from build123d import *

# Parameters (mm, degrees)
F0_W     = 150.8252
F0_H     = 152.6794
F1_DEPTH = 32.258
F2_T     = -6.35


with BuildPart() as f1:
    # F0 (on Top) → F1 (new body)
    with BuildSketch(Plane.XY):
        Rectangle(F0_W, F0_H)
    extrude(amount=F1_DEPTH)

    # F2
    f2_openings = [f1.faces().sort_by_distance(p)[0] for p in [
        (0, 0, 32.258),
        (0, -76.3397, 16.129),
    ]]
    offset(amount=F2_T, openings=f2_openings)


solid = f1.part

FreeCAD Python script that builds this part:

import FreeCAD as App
import Part
import Sketcher

V = App.Vector
Q = App.Units.Quantity


def faces_at(feature, points):
    """Names of the faces that lie closest to the given points."""
    faces = feature.Shape.Faces
    near = lambda p: min(range(len(faces)), key=lambda i: faces[i].distToShape(Part.Vertex(*p))[0])
    return sorted({f"Face{near(p) + 1}" for p in points})

doc = App.newDocument("Part")
body = doc.addObject("PartDesign::Body", "Body")

# Sketch on XY plane
sketch1 = body.newObject("Sketcher::SketchObject", "Sketch")
sketch1.AttachmentSupport = (doc.getObject("XY_Plane"), [""])
sketch1.MapMode = "FlatFace"
sketch1.addGeometry([
    Part.LineSegment(V(-75, 76, 0), V(-75, -76, 0)),
    Part.LineSegment(V(-75, -76, 0), V(75, -76, 0)),
    Part.LineSegment(V(75, -76, 0), V(75, 76, 0)),
    Part.LineSegment(V(75, 76, 0), V(-75, 76, 0)),
], False)
sketch1.addConstraint([
    Sketcher.Constraint("Coincident", 0, 2, 1, 1),
    Sketcher.Constraint("Coincident", 1, 2, 2, 1),
    Sketcher.Constraint("Coincident", 2, 2, 3, 1),
    Sketcher.Constraint("Coincident", 3, 2, 0, 1),
    Sketcher.Constraint("Vertical", 0),
    Sketcher.Constraint("Horizontal", 1),
    Sketcher.Constraint("Vertical", 2),
    Sketcher.Constraint("Horizontal", 3),
    Sketcher.Constraint("Symmetric", 0, 2, 2, 2, -1, 1),
    Sketcher.Constraint("DistanceX", 1, 1, 1, 2, Q("5.938 in")),
    Sketcher.Constraint("DistanceY", 0, 2, 0, 1, Q("6.011 in")),
])
pad1 = body.newObject("PartDesign::Pad", "Pad")
pad1.Profile = sketch1
pad1.Length = Q("1.27 in")
doc.recompute()

thickness = body.newObject("PartDesign::Thickness", "Thickness")
thickness.Base = (pad1, faces_at(pad1, [(0, 0, 32.258), (0, -76.34, 16.129)]))
thickness.Value = Q("0.25 in")
thickness.Reversed = True
thickness.Join = "Arc"

doc.recompute()
